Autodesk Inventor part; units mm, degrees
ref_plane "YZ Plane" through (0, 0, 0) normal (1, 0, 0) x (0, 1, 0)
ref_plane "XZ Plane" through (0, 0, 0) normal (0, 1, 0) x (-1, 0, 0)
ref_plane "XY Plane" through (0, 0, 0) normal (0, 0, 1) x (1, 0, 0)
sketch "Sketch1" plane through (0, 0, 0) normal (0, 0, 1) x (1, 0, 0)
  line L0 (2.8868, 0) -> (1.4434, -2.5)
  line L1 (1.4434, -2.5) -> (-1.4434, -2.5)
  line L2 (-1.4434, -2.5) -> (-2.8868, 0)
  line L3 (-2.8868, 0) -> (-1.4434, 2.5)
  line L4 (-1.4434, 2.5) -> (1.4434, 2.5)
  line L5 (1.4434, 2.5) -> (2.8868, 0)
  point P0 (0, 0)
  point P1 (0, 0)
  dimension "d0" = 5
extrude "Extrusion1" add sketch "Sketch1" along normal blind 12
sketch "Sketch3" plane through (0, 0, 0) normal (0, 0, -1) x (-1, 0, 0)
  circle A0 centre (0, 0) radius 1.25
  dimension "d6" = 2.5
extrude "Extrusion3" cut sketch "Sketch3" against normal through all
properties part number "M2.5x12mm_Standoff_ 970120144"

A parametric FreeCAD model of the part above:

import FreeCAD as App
import Part
import Sketcher
Q = App.Units.Quantity

doc = App.newDocument("Part")
body = doc.addObject("PartDesign::Body", "Body")

sketch1 = doc.addObject("Sketcher::SketchObject", "Sketch")
body.addObject(sketch1)
sketch1.AttachmentSupport = (doc.XY_Plane, [""])
sketch1.MapMode = "FlatFace"
sketch1.addGeometry(Part.LineSegment(App.Vector(1.4, -2.5, 0), App.Vector(2.9, 0, 0)), False)
sketch1.addGeometry(Part.LineSegment(App.Vector(2.9, 0, 0), App.Vector(1.4, 2.5, 0)), False)
sketch1.addGeometry(Part.LineSegment(App.Vector(1.4, 2.5, 0), App.Vector(-1.4, 2.5, 0)), False)
sketch1.addGeometry(Part.LineSegment(App.Vector(-1.4, 2.5, 0), App.Vector(-2.9, 0, 0)), False)
sketch1.addGeometry(Part.LineSegment(App.Vector(-2.9, 0, 0), App.Vector(-1.4, -2.5, 0)), False)
sketch1.addGeometry(Part.LineSegment(App.Vector(-1.4, -2.5, 0), App.Vector(1.4, -2.5, 0)), False)
sketch1.addConstraint(Sketcher.Constraint("Coincident", 0, 2, 1, 1))
sketch1.addConstraint(Sketcher.Constraint("Coincident", 1, 2, 2, 1))
sketch1.addConstraint(Sketcher.Constraint("Coincident", 2, 2, 3, 1))
sketch1.addConstraint(Sketcher.Constraint("Coincident", 3, 2, 4, 1))
sketch1.addConstraint(Sketcher.Constraint("Coincident", 4, 2, 5, 1))
sketch1.addConstraint(Sketcher.Constraint("Coincident", 5, 2, 0, 1))
sketch1.addConstraint(Sketcher.Constraint("Horizontal", 2))
sketch1.addConstraint(Sketcher.Constraint("Horizontal", 5))
sketch1.addConstraint(Sketcher.Constraint("Symmetric", 0, 2, 3, 2, -1, 1))
sketch1.addConstraint(Sketcher.Constraint("Symmetric", 1, 2, 4, 2, -1, 1))
sketch1.addConstraint(Sketcher.Constraint("PointOnObject", 0, 2, -1))
sketch1.addConstraint(Sketcher.Constraint("Parallel", 0, 3))
sketch1.addConstraint(Sketcher.Constraint("Vertical", 2, 2, 4, 2))
sketch1.addConstraint(Sketcher.Constraint("DistanceY", 4, 2, 2, 2, Q("5 mm")))
sketch1.addConstraint(Sketcher.Constraint("Angle", 0, Q("59.9996 deg")))
sketch1.addConstraint(Sketcher.Constraint("DistanceX", 2, 2, 2, 1, Q("2.8868 mm")))
pad1 = doc.addObject("PartDesign::Pad", "Pad")
body.addObject(pad1)
pad1.Profile = sketch1
pad1.Length = 12

sketch2 = doc.addObject("Sketcher::SketchObject", "Sketch001")
body.addObject(sketch2)
sketch2.AttachmentSupport = (doc.XY_Plane, [""])
sketch2.MapMode = "FlatFace"
sketch2.addGeometry(Part.Circle(App.Vector(0, 0, 0), App.Vector(0, 0, 1), 1.2), False)
sketch2.addConstraint(Sketcher.Constraint("Coincident", 0, 3, -1, 1))
sketch2.addConstraint(Sketcher.Constraint("Diameter", 0, Q("2.5 mm")))
pocket1 = doc.addObject("PartDesign::Pocket", "Pocket")
body.addObject(pocket1)
pocket1.Profile = sketch2
pocket1.Type = "ThroughAll"
pocket1.Reversed = True

doc.recompute()
